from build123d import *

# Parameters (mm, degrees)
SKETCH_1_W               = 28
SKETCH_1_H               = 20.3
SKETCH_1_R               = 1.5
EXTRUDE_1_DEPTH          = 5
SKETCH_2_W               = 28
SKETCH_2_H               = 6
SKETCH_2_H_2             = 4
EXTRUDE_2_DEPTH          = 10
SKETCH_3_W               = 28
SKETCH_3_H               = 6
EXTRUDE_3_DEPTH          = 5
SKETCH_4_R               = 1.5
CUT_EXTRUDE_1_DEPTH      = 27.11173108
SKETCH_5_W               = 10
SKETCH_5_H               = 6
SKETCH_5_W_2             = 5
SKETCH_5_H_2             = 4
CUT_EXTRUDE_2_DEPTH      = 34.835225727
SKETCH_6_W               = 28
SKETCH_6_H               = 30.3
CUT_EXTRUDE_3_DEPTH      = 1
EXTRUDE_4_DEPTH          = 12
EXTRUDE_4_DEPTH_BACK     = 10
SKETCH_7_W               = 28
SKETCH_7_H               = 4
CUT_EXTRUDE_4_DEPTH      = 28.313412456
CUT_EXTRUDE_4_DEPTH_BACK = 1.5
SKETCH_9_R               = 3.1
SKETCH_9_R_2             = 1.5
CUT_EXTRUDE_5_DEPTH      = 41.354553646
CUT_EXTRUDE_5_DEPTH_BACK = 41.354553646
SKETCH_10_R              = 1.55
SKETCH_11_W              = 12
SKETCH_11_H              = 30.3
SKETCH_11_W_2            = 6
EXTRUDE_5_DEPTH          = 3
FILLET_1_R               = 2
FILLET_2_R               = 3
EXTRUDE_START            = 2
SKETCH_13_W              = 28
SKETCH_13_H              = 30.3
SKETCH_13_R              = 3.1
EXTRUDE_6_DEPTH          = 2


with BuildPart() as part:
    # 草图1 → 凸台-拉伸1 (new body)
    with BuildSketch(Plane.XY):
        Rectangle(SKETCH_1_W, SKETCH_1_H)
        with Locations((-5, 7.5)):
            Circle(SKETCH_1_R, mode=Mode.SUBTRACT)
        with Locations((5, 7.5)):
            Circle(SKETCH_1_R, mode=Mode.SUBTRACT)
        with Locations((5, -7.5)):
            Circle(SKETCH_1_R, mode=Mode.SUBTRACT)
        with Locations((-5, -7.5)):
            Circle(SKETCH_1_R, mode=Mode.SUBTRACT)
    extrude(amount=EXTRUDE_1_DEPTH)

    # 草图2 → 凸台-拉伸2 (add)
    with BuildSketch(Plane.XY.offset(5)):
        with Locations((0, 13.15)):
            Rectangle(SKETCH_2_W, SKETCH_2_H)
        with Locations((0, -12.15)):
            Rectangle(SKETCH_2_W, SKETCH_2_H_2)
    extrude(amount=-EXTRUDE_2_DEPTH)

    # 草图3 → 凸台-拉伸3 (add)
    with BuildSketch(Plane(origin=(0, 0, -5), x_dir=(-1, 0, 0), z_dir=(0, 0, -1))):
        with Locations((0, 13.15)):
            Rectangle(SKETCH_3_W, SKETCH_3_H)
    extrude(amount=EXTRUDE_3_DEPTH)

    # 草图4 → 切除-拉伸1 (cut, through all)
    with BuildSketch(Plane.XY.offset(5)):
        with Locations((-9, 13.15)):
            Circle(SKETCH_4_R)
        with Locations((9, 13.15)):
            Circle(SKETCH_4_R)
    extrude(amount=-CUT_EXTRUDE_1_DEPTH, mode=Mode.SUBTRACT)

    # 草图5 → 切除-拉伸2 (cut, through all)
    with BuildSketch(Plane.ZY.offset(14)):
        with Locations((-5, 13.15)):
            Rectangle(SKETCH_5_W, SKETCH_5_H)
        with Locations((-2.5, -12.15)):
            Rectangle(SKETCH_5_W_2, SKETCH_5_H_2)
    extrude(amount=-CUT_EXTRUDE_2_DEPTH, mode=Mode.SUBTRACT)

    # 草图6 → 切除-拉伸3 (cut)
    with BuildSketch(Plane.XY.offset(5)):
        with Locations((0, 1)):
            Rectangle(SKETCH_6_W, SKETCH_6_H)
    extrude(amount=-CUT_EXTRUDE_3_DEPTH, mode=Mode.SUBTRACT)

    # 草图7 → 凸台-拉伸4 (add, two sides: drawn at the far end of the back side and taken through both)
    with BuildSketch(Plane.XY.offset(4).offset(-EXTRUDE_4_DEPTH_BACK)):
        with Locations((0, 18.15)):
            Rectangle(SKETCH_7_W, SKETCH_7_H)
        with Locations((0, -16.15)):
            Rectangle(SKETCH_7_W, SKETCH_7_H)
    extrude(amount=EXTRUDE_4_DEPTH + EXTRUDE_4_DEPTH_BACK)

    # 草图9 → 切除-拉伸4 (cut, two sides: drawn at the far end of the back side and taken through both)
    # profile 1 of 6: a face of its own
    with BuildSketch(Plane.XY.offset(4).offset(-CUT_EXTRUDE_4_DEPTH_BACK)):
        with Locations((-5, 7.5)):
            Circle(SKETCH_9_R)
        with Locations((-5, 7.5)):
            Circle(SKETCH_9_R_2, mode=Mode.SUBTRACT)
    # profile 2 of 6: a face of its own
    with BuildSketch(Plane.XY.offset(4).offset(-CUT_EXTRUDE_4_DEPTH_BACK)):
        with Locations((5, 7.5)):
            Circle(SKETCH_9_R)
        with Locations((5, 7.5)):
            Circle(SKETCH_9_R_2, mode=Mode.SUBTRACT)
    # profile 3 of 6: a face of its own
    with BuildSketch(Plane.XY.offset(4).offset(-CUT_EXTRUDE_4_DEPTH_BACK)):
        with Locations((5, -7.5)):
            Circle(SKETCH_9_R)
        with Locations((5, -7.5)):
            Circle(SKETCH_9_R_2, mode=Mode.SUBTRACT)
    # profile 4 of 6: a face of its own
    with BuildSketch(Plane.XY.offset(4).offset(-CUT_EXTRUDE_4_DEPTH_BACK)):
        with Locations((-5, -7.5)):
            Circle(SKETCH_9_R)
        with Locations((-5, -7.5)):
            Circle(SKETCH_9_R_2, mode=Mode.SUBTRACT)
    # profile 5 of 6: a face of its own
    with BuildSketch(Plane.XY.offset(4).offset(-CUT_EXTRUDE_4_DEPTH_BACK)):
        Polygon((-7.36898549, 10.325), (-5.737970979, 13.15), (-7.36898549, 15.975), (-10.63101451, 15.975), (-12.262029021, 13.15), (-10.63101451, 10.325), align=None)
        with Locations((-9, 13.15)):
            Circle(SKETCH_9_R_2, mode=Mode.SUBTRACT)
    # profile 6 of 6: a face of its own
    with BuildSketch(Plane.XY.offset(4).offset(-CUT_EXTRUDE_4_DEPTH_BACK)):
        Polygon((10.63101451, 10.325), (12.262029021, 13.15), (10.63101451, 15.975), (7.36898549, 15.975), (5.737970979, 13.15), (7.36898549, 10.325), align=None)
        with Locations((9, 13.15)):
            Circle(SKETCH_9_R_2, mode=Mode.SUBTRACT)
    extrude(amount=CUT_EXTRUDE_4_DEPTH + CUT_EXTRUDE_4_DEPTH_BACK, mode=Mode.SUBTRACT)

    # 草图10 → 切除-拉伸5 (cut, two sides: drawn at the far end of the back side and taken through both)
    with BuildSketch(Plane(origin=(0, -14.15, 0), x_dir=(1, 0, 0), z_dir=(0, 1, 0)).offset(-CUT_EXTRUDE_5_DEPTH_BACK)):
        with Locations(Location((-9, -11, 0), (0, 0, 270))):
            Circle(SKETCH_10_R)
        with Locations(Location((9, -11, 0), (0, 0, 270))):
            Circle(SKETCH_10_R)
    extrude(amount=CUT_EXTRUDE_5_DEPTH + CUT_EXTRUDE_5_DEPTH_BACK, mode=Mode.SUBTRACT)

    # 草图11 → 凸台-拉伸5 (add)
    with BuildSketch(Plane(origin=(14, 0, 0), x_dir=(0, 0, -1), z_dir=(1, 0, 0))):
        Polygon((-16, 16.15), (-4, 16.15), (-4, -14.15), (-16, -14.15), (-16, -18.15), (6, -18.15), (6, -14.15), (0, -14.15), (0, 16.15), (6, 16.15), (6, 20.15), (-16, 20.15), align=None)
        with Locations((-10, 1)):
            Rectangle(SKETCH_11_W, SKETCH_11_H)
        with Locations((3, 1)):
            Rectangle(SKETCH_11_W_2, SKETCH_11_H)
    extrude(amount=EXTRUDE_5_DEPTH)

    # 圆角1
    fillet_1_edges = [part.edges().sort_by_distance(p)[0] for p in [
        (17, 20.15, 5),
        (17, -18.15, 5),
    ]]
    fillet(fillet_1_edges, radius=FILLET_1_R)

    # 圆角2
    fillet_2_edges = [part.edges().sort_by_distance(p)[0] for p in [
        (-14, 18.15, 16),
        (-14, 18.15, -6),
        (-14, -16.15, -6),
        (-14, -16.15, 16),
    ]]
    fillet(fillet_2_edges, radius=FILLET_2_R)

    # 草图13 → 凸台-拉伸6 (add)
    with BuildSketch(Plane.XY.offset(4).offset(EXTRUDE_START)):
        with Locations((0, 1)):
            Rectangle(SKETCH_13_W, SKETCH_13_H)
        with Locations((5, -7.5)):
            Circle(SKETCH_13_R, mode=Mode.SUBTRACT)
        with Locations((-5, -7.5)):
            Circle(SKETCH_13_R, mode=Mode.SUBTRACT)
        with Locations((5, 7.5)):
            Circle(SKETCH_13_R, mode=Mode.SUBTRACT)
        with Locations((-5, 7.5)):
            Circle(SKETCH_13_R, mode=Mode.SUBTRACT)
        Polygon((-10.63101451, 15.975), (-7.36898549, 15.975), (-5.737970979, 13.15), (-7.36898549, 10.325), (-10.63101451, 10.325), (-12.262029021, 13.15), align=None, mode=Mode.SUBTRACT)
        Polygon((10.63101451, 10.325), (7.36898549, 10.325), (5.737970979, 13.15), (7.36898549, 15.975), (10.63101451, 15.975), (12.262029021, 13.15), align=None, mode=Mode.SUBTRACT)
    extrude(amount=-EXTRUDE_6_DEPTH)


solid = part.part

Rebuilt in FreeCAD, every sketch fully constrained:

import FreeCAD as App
import Part
import Sketcher
from FreeCAD import Vector
Q = App.Units.Quantity


def edges_at(feature, points):
    """Names of the edges that pass closest to the given points."""
    edges = feature.Shape.Edges
    near = lambda p: min(range(len(edges)), key=lambda i: edges[i].distToShape(Part.Vertex(*p))[0])
    return sorted({f"Edge{near(p) + 1}" for p in points})

doc = App.newDocument("Part")
body = doc.addObject("PartDesign::Body", "Body")

sketch1 = body.newObject("Sketcher::SketchObject", "Sketch")
sketch1.AttachmentSupport = (doc.getObject("XY_Plane"), [""])
sketch1.MapMode = "FlatFace"
sketch1.addGeometry([
    Part.LineSegment(Vector(-14, 10.2, 0), Vector(-14, -10.2, 0)),
    Part.LineSegment(Vector(-14, -10.2, 0), Vector(14, -10.2, 0)),
    Part.LineSegment(Vector(14, -10.2, 0), Vector(14, 10.2, 0)),
    Part.LineSegment(Vector(14, 10.2, 0), Vector(-14, 10.2, 0)),
    Part.Circle(Vector(-5, -7.5, 0), Vector(0, 0, 1), 1.5),
    Part.Circle(Vector(5, -7.5, 0), Vector(0, 0, 1), 1.5),
    Part.Circle(Vector(-5, 7.5, 0), Vector(0, 0, 1), 1.5),
    Part.Circle(Vector(5, 7.5, 0), Vector(0, 0, 1), 1.5),
], False)
sketch1.addConstraint([
    Sketcher.Constraint("Coincident", 0, 2, 1, 1),
    Sketcher.Constraint("Coincident", 1, 2, 2, 1),
    Sketcher.Constraint("Coincident", 2, 2, 3, 1),
    Sketcher.Constraint("Coincident", 3, 2, 0, 1),
    Sketcher.Constraint("Vertical", 0),
    Sketcher.Constraint("Horizontal", 1),
    Sketcher.Constraint("Vertical", 2),
    Sketcher.Constraint("Horizontal", 3),
    Sketcher.Constraint("Equal", 4, 5),
    Sketcher.Constraint("Equal", 5, 6),
    Sketcher.Constraint("Equal", 6, 7),
    Sketcher.Constraint("Symmetric", 5, 3, 6, 3, -1, 1),
    Sketcher.Constraint("Symmetric", 4, 3, 7, 3, -1, 1),
    Sketcher.Constraint("Symmetric", 0, 2, 2, 2, -1, 1),
    Sketcher.Constraint("Symmetric", 4, 3, 5, 3, -2),
    Sketcher.Constraint("Diameter", 4, Q("3 mm")),
    Sketcher.Constraint("DistanceX", 1, 1, 1, 2, Q("28 mm")),
    Sketcher.Constraint("DistanceY", 0, 2, 0, 1, Q("20.3 mm")),
    Sketcher.Constraint("DistanceX", 4, 3, -1, 1, Q("5 mm")),
    Sketcher.Constraint("DistanceY", 4, 3, 6, 3, Q("15 mm")),
])
pad1 = body.newObject("PartDesign::Pad", "Pad")
pad1.Profile = sketch1
pad1.Length = 5

sketch2 = body.newObject("Sketcher::SketchObject", "Sketch001")
sketch2.AttachmentSupport = (doc.getObject("XY_Plane"), [""])
sketch2.MapMode = "FlatFace"
sketch2.AttachmentOffset = App.Placement(Vector(0, 0, 5), App.Rotation())
sketch2.addGeometry([
    Part.LineSegment(Vector(-14, 16.1, 0), Vector(-14, 10.2, 0)),
    Part.LineSegment(Vector(-14, 10.2, 0), Vector(14, 10.2, 0)),
    Part.LineSegment(Vector(14, 10.2, 0), Vector(14, 16.1, 0)),
    Part.LineSegment(Vector(14, 16.1, 0), Vector(-14, 16.1, 0)),
    Part.LineSegment(Vector(-14, -10.2, 0), Vector(-14, -14.2, 0)),
    Part.LineSegment(Vector(-14, -14.2, 0), Vector(14, -14.2, 0)),
    Part.LineSegment(Vector(14, -14.2, 0), Vector(14, -10.2, 0)),
    Part.LineSegment(Vector(14, -10.2, 0), Vector(-14, -10.2, 0)),
], False)
sketch2.addConstraint([
    Sketcher.Constraint("Coincident", 0, 2, 1, 1),
    Sketcher.Constraint("Coincident", 1, 2, 2, 1),
    Sketcher.Constraint("Coincident", 2, 2, 3, 1),
    Sketcher.Constraint("Coincident", 3, 2, 0, 1),
    Sketcher.Constraint("Coincident", 4, 2, 5, 1),
    Sketcher.Constraint("Coincident", 5, 2, 6, 1),
    Sketcher.Constraint("Coincident", 6, 2, 7, 1),
    Sketcher.Constraint("Coincident", 7, 2, 4, 1),
    Sketcher.Constraint("Vertical", 0),
    Sketcher.Constraint("Horizontal", 1),
    Sketcher.Constraint("Vertical", 2),
    Sketcher.Constraint("Horizontal", 3),
    Sketcher.Constraint("Vertical", 4),
    Sketcher.Constraint("Horizontal", 5),
    Sketcher.Constraint("Vertical", 6),
    Sketcher.Constraint("Horizontal", 7),
    Sketcher.Constraint("Symmetric", 0, 2, 6, 2, -1, 1),
    Sketcher.Constraint("Vertical", 3, 2, 4, 2),
    Sketcher.Constraint("Vertical", 2, 2, 5, 2),
    Sketcher.Constraint("DistanceX", 1, 1, 1, 2, Q("28 mm")),
    Sketcher.Constraint("DistanceY", 0, 2, 0, 1, Q("6 mm")),
    Sketcher.Constraint("DistanceY", 4, 2, 4, 1, Q("4 mm")),
    Sketcher.Constraint("DistanceY", 4, 2, 0, 2, Q("24.3 mm")),
])
pad2 = body.newObject("PartDesign::Pad", "Pad001")
pad2.Profile = sketch2
pad2.Length = 10
pad2.Reversed = True

sketch3 = body.newObject("Sketcher::SketchObject", "Sketch002")
sketch3.AttachmentSupport = (doc.getObject("XY_Plane"), [""])
sketch3.MapMode = "FlatFace"
sketch3.AttachmentOffset = App.Placement(Vector(0, 0, -5), App.Rotation())
sketch3.addGeometry([
    Part.LineSegment(Vector(14, 16, 0), Vector(14, 10, 0)),
    Part.LineSegment(Vector(14, 10, 0), Vector(-14, 10, 0)),
    Part.LineSegment(Vector(-14, 10, 0), Vector(-14, 16, 0)),
    Part.LineSegment(Vector(-14, 16, 0), Vector(14, 16, 0)),
], False)
sketch3.addConstraint([
    Sketcher.Constraint("Coincident", 0, 2, 1, 1),
    Sketcher.Constraint("Coincident", 1, 2, 2, 1),
    Sketcher.Constraint("Coincident", 2, 2, 3, 1),
    Sketcher.Constraint("Coincident", 3, 2, 0, 1),
    Sketcher.Constraint("Vertical", 0),
    Sketcher.Constraint("Horizontal", 1),
    Sketcher.Constraint("Vertical", 2),
    Sketcher.Constraint("Horizontal", 3),
    Sketcher.Constraint("DistanceX", 1, 2, 1, 1, Q("28 mm")),
    Sketcher.Constraint("DistanceY", 0, 2, 0, 1, Q("6 mm")),
    Sketcher.Constraint("DistanceX", -1, 1, 0, 2, Q("14 mm")),
    Sketcher.Constraint("DistanceY", -1, 1, 0, 2, Q("10.15 mm")),
])
pad3 = body.newObject("PartDesign::Pad", "Pad002")
pad3.Profile = sketch3
pad3.Length = 5
pad3.Reversed = True

sketch4 = body.newObject("Sketcher::SketchObject", "Sketch003")
sketch4.AttachmentSupport = (doc.getObject("XY_Plane"), [""])
sketch4.MapMode = "FlatFace"
sketch4.AttachmentOffset = App.Placement(Vector(0, 0, 5), App.Rotation())
sketch4.addGeometry([
    Part.Circle(Vector(-9, 13.2, 0), Vector(0, 0, 1), 1.5),
    Part.Circle(Vector(9, 13.2, 0), Vector(0, 0, 1), 1.5),
], False)
sketch4.addConstraint([
    Sketcher.Constraint("Equal", 0, 1),
    Sketcher.Constraint("Symmetric", 0, 3, 1, 3, -2),
    Sketcher.Constraint("Diameter", 0, Q("3 mm")),
    Sketcher.Constraint("DistanceX", 0, 3, -1, 1, Q("9 mm")),
    Sketcher.Constraint("DistanceY", -1, 1, 0, 3, Q("13.15 mm")),
])
pocket1 = body.newObject("PartDesign::Pocket", "Pocket")
pocket1.Profile = sketch4
pocket1.Type = "ThroughAll"

sketch5 = body.newObject("Sketcher::SketchObject", "Sketch004")
sketch5.AttachmentSupport = (doc.getObject("YZ_Plane"), [""])
sketch5.MapMode = "FlatFace"
sketch5.AttachmentOffset = App.Placement(Vector(0, 0, -14), App.Rotation())
sketch5.addGeometry([
    Part.LineSegment(Vector(16.1, -10, 0), Vector(10.2, -10, 0)),
    Part.LineSegment(Vector(10.2, -10, 0), Vector(10.2, 0, 0)),
    Part.LineSegment(Vector(10.2, 0, 0), Vector(16.1, 0, 0)),
    Part.LineSegment(Vector(16.1, 0, 0), Vector(16.1, -10, 0)),
    Part.LineSegment(Vector(-10.2, -5, 0), Vector(-14.2, -5, 0)),
    Part.LineSegment(Vector(-14.2, -5, 0), Vector(-14.2, 0, 0)),
    Part.LineSegment(Vector(-14.2, 0, 0), Vector(-10.2, 0, 0)),
    Part.LineSegment(Vector(-10.2, 0, 0), Vector(-10.2, -5, 0)),
], False)
sketch5.addConstraint([
    Sketcher.Constraint("Coincident", 0, 2, 1, 1),
    Sketcher.Constraint("Coincident", 1, 2, 2, 1),
    Sketcher.Constraint("Coincident", 2, 2, 3, 1),
    Sketcher.Constraint("Coincident", 3, 2, 0, 1),
    Sketcher.Constraint("Coincident", 4, 2, 5, 1),
    Sketcher.Constraint("Coincident", 5, 2, 6, 1),
    Sketcher.Constraint("Coincident", 6, 2, 7, 1),
    Sketcher.Constraint("Coincident", 7, 2, 4, 1),
    Sketcher.Constraint("Horizontal", 0),
    Sketcher.Constraint("Vertical", 1),
    Sketcher.Constraint("Horizontal", 2),
    Sketcher.Constraint("Vertical", 3),
    Sketcher.Constraint("Horizontal", 4),
    Sketcher.Constraint("Vertical", 5),
    Sketcher.Constraint("Horizontal", 6),
    Sketcher.Constraint("Vertical", 7),
    Sketcher.Constraint("Symmetric", 1, 2, 6, 2, -1, 1),
    Sketcher.Constraint("PointOnObject", 1, 2, -1),
    Sketcher.Constraint("DistanceX", 0, 2, 0, 1, Q("6 mm")),
    Sketcher.Constraint("DistanceX", 4, 2, 4, 1, Q("4 mm")),
    Sketcher.Constraint("DistanceY", 1, 1, 1, 2, Q("10 mm")),
    Sketcher.Constraint("DistanceY", 5, 1, 5, 2, Q("5 mm")),
    Sketcher.Constraint("DistanceX", 4, 2, 0, 2, Q("24.3 mm")),
])
pocket2 = body.newObject("PartDesign::Pocket", "Pocket001")
pocket2.Profile = sketch5
pocket2.Type = "ThroughAll"
pocket2.Reversed = True

sketch6 = body.newObject("Sketcher::SketchObject", "Sketch005")
sketch6.AttachmentSupport = (doc.getObject("XY_Plane"), [""])
sketch6.MapMode = "FlatFace"
sketch6.AttachmentOffset = App.Placement(Vector(0, 0, 5), App.Rotation())
sketch6.addGeometry([
    Part.LineSegment(Vector(-14, 16, 0), Vector(-14, -14, 0)),
    Part.LineSegment(Vector(-14, -14, 0), Vector(14, -14, 0)),
    Part.LineSegment(Vector(14, -14, 0), Vector(14, 16, 0)),
    Part.LineSegment(Vector(14, 16, 0), Vector(-14, 16, 0)),
], False)
sketch6.addConstraint([
    Sketcher.Constraint("Coincident", 0, 2, 1, 1),
    Sketcher.Constraint("Coincident", 1, 2, 2, 1),
    Sketcher.Constraint("Coincident", 2, 2, 3, 1),
    Sketcher.Constraint("Coincident", 3, 2, 0, 1),
    Sketcher.Constraint("Vertical", 0),
    Sketcher.Constraint("Horizontal", 1),
    Sketcher.Constraint("Vertical", 2),
    Sketcher.Constraint("Horizontal", 3),
    Sketcher.Constraint("DistanceX", 1, 1, 1, 2, Q("28 mm")),
    Sketcher.Constraint("DistanceY", 0, 2, 0, 1, Q("30.3 mm")),
    Sketcher.Constraint("DistanceX", 0, 2, -1, 1, Q("14 mm")),
    Sketcher.Constraint("DistanceY", 0, 2, -1, 1, Q("14.15 mm")),
])
pocket3 = body.newObject("PartDesign::Pocket", "Pocket002")
pocket3.Profile = sketch6
pocket3.Length = 1

sketch7 = body.newObject("Sketcher::SketchObject", "Sketch006")
sketch7.AttachmentSupport = (doc.getObject("XY_Plane"), [""])
sketch7.MapMode = "FlatFace"
sketch7.AttachmentOffset = App.Placement(Vector(0, 0, 4), App.Rotation())
sketch7.addGeometry([
    Part.LineSegment(Vector(-14, 20.1, 0), Vector(-14, 16.1, 0)),
    Part.LineSegment(Vector(-14, 16.1, 0), Vector(14, 16.1, 0)),
    Part.LineSegment(Vector(14, 16.1, 0), Vector(14, 20.1, 0)),
    Part.LineSegment(Vector(14, 20.1, 0), Vector(-14, 20.1, 0)),
    Part.LineSegment(Vector(-14, -14.2, 0), Vector(-14, -18.1, 0)),
    Part.LineSegment(Vector(-14, -18.1, 0), Vector(14, -18.1, 0)),
    Part.LineSegment(Vector(14, -18.1, 0), Vector(14, -14.2, 0)),
    Part.LineSegment(Vector(14, -14.2, 0), Vector(-14, -14.2, 0)),
], False)
sketch7.addConstraint([
    Sketcher.Constraint("Coincident", 0, 2, 1, 1),
    Sketcher.Constraint("Coincident", 1, 2, 2, 1),
    Sketcher.Constraint("Coincident", 2, 2, 3, 1),
    Sketcher.Constraint("Coincident", 3, 2, 0, 1),
    Sketcher.Constraint("Coincident", 4, 2, 5, 1),
    Sketcher.Constraint("Coincident", 5, 2, 6, 1),
    Sketcher.Constraint("Coincident", 6, 2, 7, 1),
    Sketcher.Constraint("Coincident", 7, 2, 4, 1),
    Sketcher.Constraint("Vertical", 0),
    Sketcher.Constraint("Horizontal", 1),
    Sketcher.Constraint("Vertical", 2),
    Sketcher.Constraint("Horizontal", 3),
    Sketcher.Constraint("Vertical", 4),
    Sketcher.Constraint("Horizontal", 5),
    Sketcher.Constraint("Vertical", 6),
    Sketcher.Constraint("Horizontal", 7),
    Sketcher.Constraint("Vertical", 3, 2, 4, 2),
    Sketcher.Constraint("Vertical", 2, 2, 5, 2),
    Sketcher.Constraint("Equal", 2, 4),
    Sketcher.Constraint("DistanceX", 1, 1, 1, 2, Q("28 mm")),
    Sketcher.Constraint("DistanceY", 0, 2, 0, 1, Q("4 mm")),
    Sketcher.Constraint("DistanceX", 0, 2, -1, 1, Q("14 mm")),
    Sketcher.Constraint("DistanceY", 4, 2, 0, 2, Q("34.3 mm")),
    Sketcher.Constraint("DistanceY", -1, 1, 0, 2, Q("16.15 mm")),
])
pad4 = body.newObject("PartDesign::Pad", "Pad003")
pad4.Profile = sketch7
pad4.Type = "TwoLengths"
pad4.Length = 12
pad4.Length2 = 10

sketch8 = body.newObject("Sketcher::SketchObject", "Sketch007")
sketch8.AttachmentSupport = (doc.getObject("XY_Plane"), [""])
sketch8.MapMode = "FlatFace"
sketch8.AttachmentOffset = App.Placement(Vector(0, 0, 4), App.Rotation())
sketch8.addGeometry([
    Part.Circle(Vector(-5, 7.5, 0), Vector(0, 0, 1), 3.1),
    Part.Circle(Vector(-5, 7.5, 0), Vector(0, 0, 1), 1.5),
    Part.Circle(Vector(5, 7.5, 0), Vector(0, 0, 1), 3.1),
    Part.Circle(Vector(5, 7.5, 0), Vector(0, 0, 1), 1.5),
    Part.Circle(Vector(5, -7.5, 0), Vector(0, 0, 1), 3.1),
    Part.Circle(Vector(5, -7.5, 0), Vector(0, 0, 1), 1.5),
    Part.Circle(Vector(-5, -7.5, 0), Vector(0, 0, 1), 3.1),
    Part.Circle(Vector(-5, -7.5, 0), Vector(0, 0, 1), 1.5),
    Part.LineSegment(Vector(-7.4, 10.3, 0), Vector(-5.7, 13.2, 0)),
    Part.LineSegment(Vector(-5.7, 13.2, 0), Vector(-7.4, 16, 0)),
    Part.LineSegment(Vector(-7.4, 16, 0), Vector(-10.6, 16, 0)),
    Part.LineSegment(Vector(-10.6, 16, 0), Vector(-12.3, 13.2, 0)),
    Part.LineSegment(Vector(-12.3, 13.2, 0), Vector(-10.6, 10.3, 0)),
    Part.LineSegment(Vector(-10.6, 10.3, 0), Vector(-7.4, 10.3, 0)),
    Part.Circle(Vector(-9, 13.2, 0), Vector(0, 0, 1), 1.5),
    Part.LineSegment(Vector(10.6, 10.3, 0), Vector(12.3, 13.2, 0)),
    Part.LineSegment(Vector(12.3, 13.2, 0), Vector(10.6, 16, 0)),
    Part.LineSegment(Vector(10.6, 16, 0), Vector(7.4, 16, 0)),
    Part.LineSegment(Vector(7.4, 16, 0), Vector(5.7, 13.2, 0)),
    Part.LineSegment(Vector(5.7, 13.2, 0), Vector(7.4, 10.3, 0)),
    Part.LineSegment(Vector(7.4, 10.3, 0), Vector(10.6, 10.3, 0)),
    Part.Circle(Vector(9, 13.2, 0), Vector(0, 0, 1), 1.5),
], False)
sketch8.addConstraint([
    Sketcher.Constraint("Coincident", 8, 2, 9, 1),
    Sketcher.Constraint("Coincident", 9, 2, 10, 1),
    Sketcher.Constraint("Coincident", 10, 2, 11, 1),
    Sketcher.Constraint("Coincident", 11, 2, 12, 1),
    Sketcher.Constraint("Coincident", 12, 2, 13, 1),
    Sketcher.Constraint("Coincident", 13, 2, 8, 1),
    Sketcher.Constraint("Coincident", 15, 2, 16, 1),
    Sketcher.Constraint("Coincident", 16, 2, 17, 1),
    Sketcher.Constraint("Coincident", 17, 2, 18, 1),
    Sketcher.Constraint("Coincident", 18, 2, 19, 1),
    Sketcher.Constraint("Coincident", 19, 2, 20, 1),
    Sketcher.Constraint("Coincident", 20, 2, 15, 1),
    Sketcher.Constraint("Horizontal", 10),
    Sketcher.Constraint("Horizontal", 13),
    Sketcher.Constraint("Horizontal", 17),
    Sketcher.Constraint("Horizontal", 20),
    Sketcher.Constraint("Coincident", 1, 3, 0, 3),
    Sketcher.Constraint("Coincident", 3, 3, 2, 3),
    Sketcher.Constraint("Coincident", 5, 3, 4, 3),
    Sketcher.Constraint("Coincident", 7, 3, 6, 3),
    Sketcher.Constraint("Equal", 0, 2),
    Sketcher.Constraint("Equal", 1, 3),
    Sketcher.Constraint("Equal", 2, 4),
    Sketcher.Constraint("Equal", 3, 5),
    Sketcher.Constraint("Equal", 4, 6),
    Sketcher.Constraint("Equal", 5, 7),
    Sketcher.Constraint("Equal", 7, 14),
    Sketcher.Constraint("Equal", 14, 21),
    Sketcher.Constraint("Symmetric", 0, 3, 4, 3, -1, 1),
    Sketcher.Constraint("Symmetric", 2, 3, 6, 3, -1, 1),
    Sketcher.Constraint("Symmetric", 0, 3, 2, 3, -2),
    Sketcher.Constraint("Symmetric", 14, 3, 21, 3, -2),
    Sketcher.Constraint("Symmetric", 11, 2, 15, 2, -2),
    Sketcher.Constraint("Symmetric", 10, 2, 16, 2, -2),
    Sketcher.Constraint("Symmetric", 8, 2, 18, 2, -2),
    Sketcher.Constraint("Symmetric", 13, 2, 19, 2, -2),
    Sketcher.Constraint("Parallel", 8, 11),
    Sketcher.Constraint("Parallel", 9, 12),
    Sketcher.Constraint("Parallel", 11, 15),
    Sketcher.Constraint("Parallel", 12, 16),
    Sketcher.Constraint("Parallel", 15, 18),
    Sketcher.Constraint("Horizontal", 21, 3, 8, 2),
    Sketcher.Constraint("Horizontal", 8, 2, 11, 2),
    Sketcher.Constraint("Vertical", 10, 2, 12, 2),
    Sketcher.Constraint("Diameter", 1, Q("3 mm")),
    Sketcher.Constraint("Diameter", 0, Q("6.2 mm")),
    Sketcher.Constraint("Angle", 8, Q("60 deg")),
    Sketcher.Constraint("DistanceX", 0, 3, -1, 1, Q("5 mm")),
    Sketcher.Constraint("DistanceX", 14, 3, -1, 1, Q("9 mm")),
    Sketcher.Constraint("DistanceY", 4, 3, 2, 3, Q("15 mm")),
    Sketcher.Constraint("DistanceX", 8, 2, 15, 2, Q("18 mm")),
    Sketcher.Constraint("DistanceY", -1, 1, 14, 3, Q("13.15 mm")),
    Sketcher.Constraint("DistanceY", 12, 2, 10, 2, Q("5.65 mm")),
    Sketcher.Constraint("DistanceX", 10, 2, 10, 1, Q("3.262029 mm")),
])
pocket4 = body.newObject("PartDesign::Pocket", "Pocket003")
pocket4.Profile = sketch8
pocket4.Type = "TwoLengths"
pocket4.Length = 28.313412
pocket4.Length2 = 1.5
pocket4.Reversed = True

sketch9 = body.newObject("Sketcher::SketchObject", "Sketch008")
sketch9.AttachmentSupport = (doc.getObject("XZ_Plane"), [""])
sketch9.MapMode = "FlatFace"
sketch9.AttachmentOffset = App.Placement(Vector(0, 0, 14.15), App.Rotation())
sketch9.addGeometry([
    Part.Circle(Vector(-9, 11, 0), Vector(0, 0, 1), 1.6),
    Part.Circle(Vector(9, 11, 0), Vector(0, 0, 1), 1.6),
], False)
sketch9.addConstraint([
    Sketcher.Constraint("Equal", 0, 1),
    Sketcher.Constraint("Symmetric", 0, 3, 1, 3, -2),
    Sketcher.Constraint("Diameter", 0, Q("3.1 mm")),
    Sketcher.Constraint("DistanceX", 0, 3, -1, 1, Q("9 mm")),
    Sketcher.Constraint("DistanceY", -1, 1, 0, 3, Q("11 mm")),
])
pocket5 = body.newObject("PartDesign::Pocket", "Pocket004")
pocket5.Profile = sketch9
pocket5.Type = "ThroughAll"
pocket5.Midplane = True

sketch10 = body.newObject("Sketcher::SketchObject", "Sketch009")
sketch10.AttachmentSupport = (doc.getObject("YZ_Plane"), [""])
sketch10.MapMode = "FlatFace"
sketch10.AttachmentOffset = App.Placement(Vector(0, 0, 14), App.Rotation())
sketch10.addGeometry([
    Part.LineSegment(Vector(-18, 16, 0), Vector(-18, -6, 0)),
    Part.LineSegment(Vector(-18, -6, 0), Vector(20, -6, 0)),
    Part.LineSegment(Vector(20, -6, 0), Vector(20, 16, 0)),
    Part.LineSegment(Vector(20, 16, 0), Vector(-18, 16, 0)),
], False)
sketch10.addConstraint([
    Sketcher.Constraint("Coincident", 0, 2, 1, 1),
    Sketcher.Constraint("Coincident", 1, 2, 2, 1),
    Sketcher.Constraint("Coincident", 2, 2, 3, 1),
    Sketcher.Constraint("Coincident", 3, 2, 0, 1),
    Sketcher.Constraint("Vertical", 0),
    Sketcher.Constraint("Horizontal", 1),
    Sketcher.Constraint("Vertical", 2),
    Sketcher.Constraint("Horizontal", 3),
    Sketcher.Constraint("DistanceY", 0, 2, 0, 1, Q("22 mm")),
    Sketcher.Constraint("DistanceX", 1, 1, 1, 2, Q("38.3 mm")),
    Sketcher.Constraint("DistanceY", 0, 2, -1, 1, Q("6 mm")),
    Sketcher.Constraint("DistanceX", 0, 2, -1, 1, Q("18.15 mm")),
])
pad5 = body.newObject("PartDesign::Pad", "Pad004")
pad5.Profile = sketch10
pad5.Length = 3
doc.recompute()

fillet = body.newObject("PartDesign::Fillet", "Fillet")
fillet.Base = (pad5, edges_at(pad5, [(17, 20.15, 5), (17, -18.15, 5)]))
fillet.Radius = 2
doc.recompute()

fillet2 = body.newObject("PartDesign::Fillet", "Fillet001")
fillet2.Base = (fillet, edges_at(fillet, [
    (-14, 18.15, 16),
    (-14, 18.15, -6),
    (-14, -16.15, -6),
    (-14, -16.15, 16),
]))
fillet2.Radius = 3

sketch11 = body.newObject("Sketcher::SketchObject", "Sketch010")
sketch11.AttachmentSupport = (doc.getObject("XY_Plane"), [""])
sketch11.MapMode = "FlatFace"
sketch11.AttachmentOffset = App.Placement(Vector(0, 0, 6), App.Rotation())
sketch11.addGeometry([
    Part.LineSegment(Vector(-14, 16.1, 0), Vector(-14, -14.2, 0)),
    Part.LineSegment(Vector(-14, -14.2, 0), Vector(14, -14.2, 0)),
    Part.LineSegment(Vector(14, -14.2, 0), Vector(14, 16.1, 0)),
    Part.LineSegment(Vector(14, 16.1, 0), Vector(-14, 16.1, 0)),
    Part.Circle(Vector(-5, -7.5, 0), Vector(0, 0, 1), 3.1),
    Part.Circle(Vector(5, -7.5, 0), Vector(0, 0, 1), 3.1),
    Part.Circle(Vector(-5, 7.5, 0), Vector(0, 0, 1), 3.1),
    Part.LineSegment(Vector(-12.3, 13.2, 0), Vector(-10.6, 16, 0)),
    Part.LineSegment(Vector(-10.6, 16, 0), Vector(-7.4, 16, 0)),
    Part.LineSegment(Vector(-7.4, 16, 0), Vector(-5.7, 13.2, 0)),
    Part.LineSegment(Vector(-5.7, 13.2, 0), Vector(-7.4, 10.3, 0)),
    Part.LineSegment(Vector(-7.4, 10.3, 0), Vector(-10.6, 10.3, 0)),
    Part.LineSegment(Vector(-10.6, 10.3, 0), Vector(-12.3, 13.2, 0)),
    Part.Circle(Vector(5, 7.5, 0), Vector(0, 0, 1), 3.1),
    Part.LineSegment(Vector(12.3, 13.2, 0), Vector(10.6, 10.3, 0)),
    Part.LineSegment(Vector(10.6, 10.3, 0), Vector(7.4, 10.3, 0)),
    Part.LineSegment(Vector(7.4, 10.3, 0), Vector(5.7, 13.2, 0)),
    Part.LineSegment(Vector(5.7, 13.2, 0), Vector(7.4, 16, 0)),
    Part.LineSegment(Vector(7.4, 16, 0), Vector(10.6, 16, 0)),
    Part.LineSegment(Vector(10.6, 16, 0), Vector(12.3, 13.2, 0)),
], False)
sketch11.addConstraint([
    Sketcher.Constraint("Coincident", 0, 2, 1, 1),
    Sketcher.Constraint("Coincident", 1, 2, 2, 1),
    Sketcher.Constraint("Coincident", 2, 2, 3, 1),
    Sketcher.Constraint("Coincident", 3, 2, 0, 1),
    Sketcher.Constraint("Coincident", 7, 2, 8, 1),
    Sketcher.Constraint("Coincident", 8, 2, 9, 1),
    Sketcher.Constraint("Coincident", 9, 2, 10, 1),
    Sketcher.Constraint("Coincident", 10, 2, 11, 1),
    Sketcher.Constraint("Coincident", 11, 2, 12, 1),
    Sketcher.Constraint("Coincident", 12, 2, 7, 1),
    Sketcher.Constraint("Coincident", 14, 2, 15, 1),
    Sketcher.Constraint("Coincident", 15, 2, 16, 1),
    Sketcher.Constraint("Coincident", 16, 2, 17, 1),
    Sketcher.Constraint("Coincident", 17, 2, 18, 1),
    Sketcher.Constraint("Coincident", 18, 2, 19, 1),
    Sketcher.Constraint("Coincident", 19, 2, 14, 1),
    Sketcher.Constraint("Vertical", 0),
    Sketcher.Constraint("Horizontal", 1),
    Sketcher.Constraint("Vertical", 2),
    Sketcher.Constraint("Horizontal", 3),
    Sketcher.Constraint("Horizontal", 8),
    Sketcher.Constraint("Horizontal", 11),
    Sketcher.Constraint("Horizontal", 15),
    Sketcher.Constraint("Horizontal", 18),
    Sketcher.Constraint("Equal", 4, 5),
    Sketcher.Constraint("Equal", 5, 6),
    Sketcher.Constraint("Equal", 6, 13),
    Sketcher.Constraint("Symmetric", 5, 3, 6, 3, -1, 1),
    Sketcher.Constraint("Symmetric", 4, 3, 13, 3, -1, 1),
    Sketcher.Constraint("Symmetric", 4, 3, 5, 3, -2),
    Sketcher.Constraint("Symmetric", 11, 2, 14, 2, -2),
    Sketcher.Constraint("Symmetric", 9, 2, 16, 2, -2),
    Sketcher.Constraint("Symmetric", 8, 2, 17, 2, -2),
    Sketcher.Constraint("Symmetric", 12, 2, 19, 2, -2),
    Sketcher.Constraint("Parallel", 7, 10),
    Sketcher.Constraint("Parallel", 9, 12),
    Sketcher.Constraint("Parallel", 10, 14),
    Sketcher.Constraint("Parallel", 12, 16),
    Sketcher.Constraint("Parallel", 16, 19),
    Sketcher.Constraint("Horizontal", 9, 2, 12, 2),
    Sketcher.Constraint("Vertical", 8, 2, 10, 2),
    Sketcher.Constraint("Diameter", 4, Q("6.2 mm")),
    Sketcher.Constraint("DistanceX", 1, 1, 1, 2, Q("28 mm")),
    Sketcher.Constraint("Angle", 7, Q("60 deg")),
    Sketcher.Constraint("DistanceY", 0, 2, 0, 1, Q("30.3 mm")),
    Sketcher.Constraint("DistanceX", 4, 3, -1, 1, Q("5 mm")),
    Sketcher.Constraint("DistanceX", 0, 2, -1, 1, Q("14 mm")),
    Sketcher.Constraint("DistanceY", 4, 3, 6, 3, Q("15 mm")),
    Sketcher.Constraint("DistanceY", 9, 2, 3, 2, Q("3 mm")),
    Sketcher.Constraint("DistanceX", 10, 2, 14, 2, Q("18 mm")),
    Sketcher.Constraint("DistanceY", 0, 2, -1, 1, Q("14.15 mm")),
    Sketcher.Constraint("DistanceY", 10, 2, 8, 2, Q("5.65 mm")),
    Sketcher.Constraint("DistanceX", 8, 1, 8, 2, Q("3.262029 mm")),
])
pad6 = body.newObject("PartDesign::Pad", "Pad005")
pad6.Profile = sketch11
pad6.Length = 2
pad6.Reversed = True

doc.recompute()
